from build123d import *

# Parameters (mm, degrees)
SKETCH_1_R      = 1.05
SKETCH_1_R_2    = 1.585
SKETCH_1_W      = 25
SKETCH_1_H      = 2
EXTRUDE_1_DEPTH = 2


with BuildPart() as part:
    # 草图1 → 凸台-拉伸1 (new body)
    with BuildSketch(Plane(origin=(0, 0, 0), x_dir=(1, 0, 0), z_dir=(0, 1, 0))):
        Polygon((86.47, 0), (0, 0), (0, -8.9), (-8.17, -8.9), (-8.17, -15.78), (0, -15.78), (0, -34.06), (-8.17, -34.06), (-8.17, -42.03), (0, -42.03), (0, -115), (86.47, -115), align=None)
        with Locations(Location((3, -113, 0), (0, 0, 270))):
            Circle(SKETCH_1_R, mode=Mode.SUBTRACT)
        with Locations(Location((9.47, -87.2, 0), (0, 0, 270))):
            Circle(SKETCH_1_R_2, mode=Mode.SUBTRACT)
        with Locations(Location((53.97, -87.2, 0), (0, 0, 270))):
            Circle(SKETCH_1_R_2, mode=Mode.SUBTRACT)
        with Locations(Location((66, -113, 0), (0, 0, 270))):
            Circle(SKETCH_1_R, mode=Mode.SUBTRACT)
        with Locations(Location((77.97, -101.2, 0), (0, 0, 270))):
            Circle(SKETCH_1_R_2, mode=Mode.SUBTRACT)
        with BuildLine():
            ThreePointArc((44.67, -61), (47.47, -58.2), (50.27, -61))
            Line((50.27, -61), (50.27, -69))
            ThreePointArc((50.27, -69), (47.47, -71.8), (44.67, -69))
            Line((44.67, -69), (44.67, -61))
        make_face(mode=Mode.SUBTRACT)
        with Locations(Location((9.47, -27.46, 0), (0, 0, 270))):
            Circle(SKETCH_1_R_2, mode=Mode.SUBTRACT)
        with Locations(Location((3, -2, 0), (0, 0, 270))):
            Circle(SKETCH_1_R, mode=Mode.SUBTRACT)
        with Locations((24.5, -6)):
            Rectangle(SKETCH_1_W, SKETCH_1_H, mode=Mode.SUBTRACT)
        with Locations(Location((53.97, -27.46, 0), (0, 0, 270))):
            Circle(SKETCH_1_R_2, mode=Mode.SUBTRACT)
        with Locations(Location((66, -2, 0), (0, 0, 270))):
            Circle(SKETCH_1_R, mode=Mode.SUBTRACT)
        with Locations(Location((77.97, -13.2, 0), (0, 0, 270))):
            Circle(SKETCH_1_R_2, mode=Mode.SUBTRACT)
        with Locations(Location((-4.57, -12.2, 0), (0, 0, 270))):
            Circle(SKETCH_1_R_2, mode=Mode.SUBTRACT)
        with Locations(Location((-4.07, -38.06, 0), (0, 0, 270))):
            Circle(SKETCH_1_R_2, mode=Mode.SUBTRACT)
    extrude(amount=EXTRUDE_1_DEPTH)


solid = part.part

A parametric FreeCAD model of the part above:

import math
import FreeCAD as App
import Part
import Sketcher
from FreeCAD import Vector


def add_polygon(sketch, points):
    """Adds a closed chain of lines whose ends are joined by coincident constraints."""
    first, n = sketch.GeometryCount, len(points)
    for a, b in zip(points, points[1:] + points[:1]):
        sketch.addGeometry(Part.LineSegment(App.Vector(*a, 0), App.Vector(*b, 0)), False)
    for i in range(n):
        sketch.addConstraint(Sketcher.Constraint("Coincident", first + i, 2, first + (i + 1) % n, 1))

doc = App.newDocument("Part")
body = doc.addObject("PartDesign::Body", "Body")

sketch1 = body.newObject("Sketcher::SketchObject", "Sketch")
sketch1.AttachmentSupport = (doc.getObject("XZ_Plane"), [""])
sketch1.MapMode = "FlatFace"
add_polygon(sketch1, [(86.47, 0), (0, 0), (0, 8.9), (-8.17, 8.9), (-8.17, 15.78), (0, 15.78), (0, 34.06), (-8.17, 34.06), (-8.17, 42.03), (0, 42.03), (0, 115), (86.47, 115)])
sketch1.addGeometry(Part.Circle(Vector(3, 113, 0), Vector(0, 0, 1), 1.05), False)
sketch1.addGeometry(Part.Circle(Vector(9.47, 87.2, 0), Vector(0, 0, 1), 1.585), False)
sketch1.addGeometry(Part.Circle(Vector(53.97, 87.2, 0), Vector(0, 0, 1), 1.585), False)
sketch1.addGeometry(Part.Circle(Vector(66, 113, 0), Vector(0, 0, 1), 1.05), False)
sketch1.addGeometry(Part.Circle(Vector(77.97, 101.2, 0), Vector(0, 0, 1), 1.585), False)
sketch1.addGeometry(Part.LineSegment(Vector(44.67, 69, 0), Vector(44.67, 61, 0)), False)
sketch1.addGeometry(Part.ArcOfCircle(Part.Circle(Vector(47.47, 61, 0), Vector(0, 0, 1), 2.8), math.radians(180), math.radians(360)), False)
sketch1.addGeometry(Part.LineSegment(Vector(50.27, 61, 0), Vector(50.27, 69, 0)), False)
sketch1.addGeometry(Part.ArcOfCircle(Part.Circle(Vector(47.47, 69, 0), Vector(0, 0, 1), 2.8), math.radians(0), math.radians(180)), False)
sketch1.addGeometry(Part.Circle(Vector(-4.07, 38.06, 0), Vector(0, 0, 1), 1.585), False)
sketch1.addGeometry(Part.Circle(Vector(9.47, 27.46, 0), Vector(0, 0, 1), 1.585), False)
sketch1.addGeometry(Part.Circle(Vector(-4.57, 12.2, 0), Vector(0, 0, 1), 1.585), False)
sketch1.addGeometry(Part.Circle(Vector(3, 2, 0), Vector(0, 0, 1), 1.05), False)
add_polygon(sketch1, [(37, 7), (12, 7), (12, 5), (37, 5)])
sketch1.addGeometry(Part.Circle(Vector(53.97, 27.46, 0), Vector(0, 0, 1), 1.585), False)
sketch1.addGeometry(Part.Circle(Vector(66, 2, 0), Vector(0, 0, 1), 1.05), False)
sketch1.addGeometry(Part.Circle(Vector(77.97, 13.2, 0), Vector(0, 0, 1), 1.585), False)
sketch1.addConstraint([
    Sketcher.Constraint("Tangent", 17, 2, 18, 1),
    Sketcher.Constraint("Tangent", 18, 2, 19, 1),
    Sketcher.Constraint("Tangent", 19, 2, 20, 1),
    Sketcher.Constraint("Tangent", 20, 2, 17, 1),
    Sketcher.Constraint("Horizontal", 0),
    Sketcher.Constraint("Vertical", 1),
    Sketcher.Constraint("Horizontal", 2),
    Sketcher.Constraint("Vertical", 3),
    Sketcher.Constraint("Horizontal", 4),
    Sketcher.Constraint("Vertical", 5),
    Sketcher.Constraint("Horizontal", 6),
    Sketcher.Constraint("Vertical", 7),
    Sketcher.Constraint("Horizontal", 8),
    Sketcher.Constraint("Vertical", 9),
    Sketcher.Constraint("Horizontal", 10),
    Sketcher.Constraint("Vertical", 11),
    Sketcher.Constraint("Vertical", 17),
    Sketcher.Constraint("Vertical", 19),
    Sketcher.Constraint("Horizontal", 25),
    Sketcher.Constraint("Vertical", 26),
    Sketcher.Constraint("Horizontal", 27),
    Sketcher.Constraint("Vertical", 28),
    Sketcher.Constraint("Coincident", 0, 2, -1, 1),
    Sketcher.Constraint("Equal", 13, 14),
    Sketcher.Constraint("Equal", 12, 15),
    Sketcher.Constraint("Equal", 14, 16),
    Sketcher.Constraint("Equal", 16, 21),
    Sketcher.Constraint("Equal", 21, 22),
    Sketcher.Constraint("Equal", 22, 23),
    Sketcher.Constraint("Equal", 15, 24),
    Sketcher.Constraint("Equal", 23, 29),
    Sketcher.Constraint("Equal", 24, 30),
    Sketcher.Constraint("Equal", 29, 31),
    Sketcher.Constraint("PointOnObject", 4, 2, -2),
    Sketcher.Constraint("PointOnObject", 8, 2, -2),
    Sketcher.Constraint("Horizontal", 13, 3, 14, 3),
    Sketcher.Constraint("Horizontal", 12, 3, 15, 3),
    Sketcher.Constraint("Horizontal", 22, 3, 29, 3),
    Sketcher.Constraint("Horizontal", 24, 3, 30, 3),
    Sketcher.Constraint("Vertical", 13, 3, 22, 3),
    Sketcher.Constraint("Vertical", 12, 3, 24, 3),
    Sketcher.Constraint("Vertical", 14, 3, 29, 3),
    Sketcher.Constraint("Vertical", 15, 3, 30, 3),
    Sketcher.Constraint("Vertical", 16, 3, 31, 3),
    Sketcher.Constraint("Vertical", 3, 2, 6, 2),
    Sketcher.Constraint("Diameter", 12, 2.1),
    Sketcher.Constraint("Radius", 18, 2.8),
    Sketcher.Constraint("Diameter", 13, 3.17),
    Sketcher.Constraint("DistanceX", 25, 2, 25, 1, 25.0),
    Sketcher.Constraint("DistanceY", 11, 2, 11, 1, 115.0),
    Sketcher.Constraint("DistanceY", 17, 2, 17, 1, 8.0),
    Sketcher.Constraint("DistanceY", 26, 2, 26, 1, 2.0),
    Sketcher.Constraint("DistanceY", 1, 1, 1, 2, 8.9),
    Sketcher.Constraint("DistanceX", -1, 1, 12, 3, 3.0),
    Sketcher.Constraint("DistanceY", -1, 1, 12, 3, 113.0),
    Sketcher.Constraint("DistanceX", -1, 1, 15, 3, 66.0),
    Sketcher.Constraint("DistanceY", -1, 1, 18, 3, 61.0),
    Sketcher.Constraint("DistanceY", -1, 1, 24, 3, 2.0),
    Sketcher.Constraint("DistanceX", -1, 1, 25, 2, 12.0),
    Sketcher.Constraint("DistanceY", -1, 1, 25, 2, 7.0),
    Sketcher.Constraint("DistanceX", 14, 3, 16, 3, 24.0),
    Sketcher.Constraint("DistanceY", 14, 3, 16, 3, 14.0),
    Sketcher.Constraint("DistanceX", 13, 3, 18, 3, 38.0),
    Sketcher.Constraint("DistanceY", 23, 3, 13, 3, 75.0),
    Sketcher.Constraint("DistanceY", 5, 2, 21, 3, 4.0),
    Sketcher.Constraint("DistanceX", 20, 3, 10, 2, 39.0),
    Sketcher.Constraint("DistanceX", 0, 2, 0, 1, 86.47),
    Sketcher.Constraint("DistanceX", 2, 2, 2, 1, 8.17),
    Sketcher.Constraint("DistanceY", 3, 1, 3, 2, 6.88),
    Sketcher.Constraint("DistanceY", 5, 1, 5, 2, 18.28),
    Sketcher.Constraint("DistanceY", 7, 1, 7, 2, 7.97),
    Sketcher.Constraint("DistanceY", -1, 1, 13, 3, 87.2),
    Sketcher.Constraint("DistanceY", -1, 1, 31, 3, 13.2),
    Sketcher.Constraint("DistanceX", 13, 3, 14, 3, 44.5),
    Sketcher.Constraint("DistanceY", 22, 3, 21, 3, 10.6),
    Sketcher.Constraint("DistanceX", 23, 3, 21, 3, 0.5),
    Sketcher.Constraint("DistanceX", 2, 2, 23, 3, 3.6),
])
pad1 = body.newObject("PartDesign::Pad", "Pad")
pad1.Profile = sketch1
pad1.Length = 2
pad1.Reversed = True

doc.recompute()
